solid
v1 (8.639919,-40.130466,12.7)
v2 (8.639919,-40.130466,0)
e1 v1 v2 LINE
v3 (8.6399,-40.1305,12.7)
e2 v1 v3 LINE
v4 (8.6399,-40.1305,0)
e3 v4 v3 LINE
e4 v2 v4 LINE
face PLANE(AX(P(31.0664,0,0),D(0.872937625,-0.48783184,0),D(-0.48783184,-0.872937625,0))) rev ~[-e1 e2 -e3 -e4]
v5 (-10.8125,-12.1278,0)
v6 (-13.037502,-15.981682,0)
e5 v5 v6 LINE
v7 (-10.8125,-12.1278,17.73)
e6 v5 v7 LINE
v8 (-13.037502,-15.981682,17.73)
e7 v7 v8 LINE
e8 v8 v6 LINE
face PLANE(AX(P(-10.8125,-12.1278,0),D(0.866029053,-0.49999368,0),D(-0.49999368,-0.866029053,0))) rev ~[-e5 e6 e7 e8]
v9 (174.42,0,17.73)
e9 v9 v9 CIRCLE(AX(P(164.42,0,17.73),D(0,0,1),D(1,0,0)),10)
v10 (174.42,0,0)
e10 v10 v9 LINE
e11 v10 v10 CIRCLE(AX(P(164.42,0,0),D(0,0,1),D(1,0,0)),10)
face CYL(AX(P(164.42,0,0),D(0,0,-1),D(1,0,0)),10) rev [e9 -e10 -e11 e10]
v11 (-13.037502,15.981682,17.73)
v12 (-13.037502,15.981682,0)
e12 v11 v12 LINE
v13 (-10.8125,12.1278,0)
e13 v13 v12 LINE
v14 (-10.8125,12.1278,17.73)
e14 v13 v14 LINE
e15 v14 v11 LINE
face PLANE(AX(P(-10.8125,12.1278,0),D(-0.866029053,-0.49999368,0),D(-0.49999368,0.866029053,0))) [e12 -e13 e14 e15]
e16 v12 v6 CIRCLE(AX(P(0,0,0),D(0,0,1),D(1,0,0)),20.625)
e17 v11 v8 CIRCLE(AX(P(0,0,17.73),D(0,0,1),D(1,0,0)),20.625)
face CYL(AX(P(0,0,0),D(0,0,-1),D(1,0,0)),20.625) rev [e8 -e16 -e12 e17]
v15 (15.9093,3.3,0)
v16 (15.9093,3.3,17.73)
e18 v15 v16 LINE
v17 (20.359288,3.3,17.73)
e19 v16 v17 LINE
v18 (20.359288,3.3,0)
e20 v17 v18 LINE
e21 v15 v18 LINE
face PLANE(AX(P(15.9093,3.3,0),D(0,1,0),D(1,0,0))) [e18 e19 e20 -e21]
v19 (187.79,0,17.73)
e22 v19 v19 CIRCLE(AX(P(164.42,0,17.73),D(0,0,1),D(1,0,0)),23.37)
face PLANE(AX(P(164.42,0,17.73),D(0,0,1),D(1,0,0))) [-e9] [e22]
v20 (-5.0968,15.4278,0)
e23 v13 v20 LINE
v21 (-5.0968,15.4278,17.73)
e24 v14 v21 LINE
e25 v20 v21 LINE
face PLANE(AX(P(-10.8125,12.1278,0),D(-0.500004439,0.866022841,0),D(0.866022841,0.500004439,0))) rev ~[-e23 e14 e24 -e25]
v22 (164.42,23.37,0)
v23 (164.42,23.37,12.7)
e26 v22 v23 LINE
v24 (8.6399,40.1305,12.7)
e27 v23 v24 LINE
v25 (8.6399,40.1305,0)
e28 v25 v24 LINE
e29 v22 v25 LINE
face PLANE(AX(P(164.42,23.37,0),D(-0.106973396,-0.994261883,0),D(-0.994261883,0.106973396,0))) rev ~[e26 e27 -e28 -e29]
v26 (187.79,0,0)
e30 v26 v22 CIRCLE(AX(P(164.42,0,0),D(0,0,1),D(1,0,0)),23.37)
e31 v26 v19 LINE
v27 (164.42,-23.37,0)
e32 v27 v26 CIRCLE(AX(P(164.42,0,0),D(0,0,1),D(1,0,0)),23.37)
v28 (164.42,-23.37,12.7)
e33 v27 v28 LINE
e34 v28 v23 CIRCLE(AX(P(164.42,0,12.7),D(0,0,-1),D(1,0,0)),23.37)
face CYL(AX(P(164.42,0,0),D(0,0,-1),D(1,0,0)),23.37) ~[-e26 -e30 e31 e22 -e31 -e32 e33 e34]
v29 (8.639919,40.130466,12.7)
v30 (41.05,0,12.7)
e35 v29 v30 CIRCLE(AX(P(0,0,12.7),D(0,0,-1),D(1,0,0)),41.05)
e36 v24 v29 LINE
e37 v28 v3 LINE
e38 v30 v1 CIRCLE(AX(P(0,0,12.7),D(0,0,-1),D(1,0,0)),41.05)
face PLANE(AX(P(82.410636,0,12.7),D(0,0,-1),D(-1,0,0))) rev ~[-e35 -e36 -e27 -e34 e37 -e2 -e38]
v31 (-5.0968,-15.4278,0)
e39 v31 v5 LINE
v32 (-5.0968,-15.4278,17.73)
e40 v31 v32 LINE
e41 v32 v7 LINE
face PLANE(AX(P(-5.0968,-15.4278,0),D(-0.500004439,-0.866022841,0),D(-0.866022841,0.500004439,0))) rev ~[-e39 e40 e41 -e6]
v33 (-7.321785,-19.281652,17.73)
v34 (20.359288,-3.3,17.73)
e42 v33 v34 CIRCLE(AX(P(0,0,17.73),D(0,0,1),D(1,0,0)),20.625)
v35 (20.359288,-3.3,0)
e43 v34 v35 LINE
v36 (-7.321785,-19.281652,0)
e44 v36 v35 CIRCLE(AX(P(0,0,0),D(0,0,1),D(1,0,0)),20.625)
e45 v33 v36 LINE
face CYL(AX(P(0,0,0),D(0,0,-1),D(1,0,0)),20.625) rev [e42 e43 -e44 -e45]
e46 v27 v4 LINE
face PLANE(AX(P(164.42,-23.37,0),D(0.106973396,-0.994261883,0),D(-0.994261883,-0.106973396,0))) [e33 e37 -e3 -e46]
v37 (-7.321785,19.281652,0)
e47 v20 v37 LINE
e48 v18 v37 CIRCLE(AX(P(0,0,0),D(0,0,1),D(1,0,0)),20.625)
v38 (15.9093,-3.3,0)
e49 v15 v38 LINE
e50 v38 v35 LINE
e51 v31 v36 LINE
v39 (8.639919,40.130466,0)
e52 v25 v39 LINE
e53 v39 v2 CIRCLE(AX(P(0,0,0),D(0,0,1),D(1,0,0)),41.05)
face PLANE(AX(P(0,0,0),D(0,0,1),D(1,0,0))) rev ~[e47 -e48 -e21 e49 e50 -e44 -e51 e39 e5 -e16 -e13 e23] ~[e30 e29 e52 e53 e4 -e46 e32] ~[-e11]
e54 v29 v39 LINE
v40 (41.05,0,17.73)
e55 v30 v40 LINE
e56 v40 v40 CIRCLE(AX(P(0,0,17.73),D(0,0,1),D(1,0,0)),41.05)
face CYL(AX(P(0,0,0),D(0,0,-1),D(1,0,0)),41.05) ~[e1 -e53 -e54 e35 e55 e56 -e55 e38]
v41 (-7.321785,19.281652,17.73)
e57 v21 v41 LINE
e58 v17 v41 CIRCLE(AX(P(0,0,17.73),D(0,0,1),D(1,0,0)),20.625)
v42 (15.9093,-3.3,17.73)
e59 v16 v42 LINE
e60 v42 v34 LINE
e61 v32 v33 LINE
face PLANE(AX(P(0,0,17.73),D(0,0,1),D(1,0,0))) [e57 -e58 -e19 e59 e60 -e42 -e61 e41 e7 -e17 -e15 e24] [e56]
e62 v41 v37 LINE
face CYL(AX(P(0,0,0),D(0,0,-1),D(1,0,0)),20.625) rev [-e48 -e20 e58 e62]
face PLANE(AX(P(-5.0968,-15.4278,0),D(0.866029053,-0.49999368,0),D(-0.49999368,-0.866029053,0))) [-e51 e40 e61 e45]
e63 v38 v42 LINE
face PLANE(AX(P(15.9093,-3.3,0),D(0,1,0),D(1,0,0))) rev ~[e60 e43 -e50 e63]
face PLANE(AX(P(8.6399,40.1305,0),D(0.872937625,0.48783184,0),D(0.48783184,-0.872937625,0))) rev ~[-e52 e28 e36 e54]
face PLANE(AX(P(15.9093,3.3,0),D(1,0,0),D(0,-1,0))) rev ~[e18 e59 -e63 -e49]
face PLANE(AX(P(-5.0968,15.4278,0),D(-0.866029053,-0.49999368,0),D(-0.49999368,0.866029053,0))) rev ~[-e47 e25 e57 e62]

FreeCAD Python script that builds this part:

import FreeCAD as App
import Part
import Sketcher
Q = App.Units.Quantity


def add_polygon(sketch, points):
    """Adds a closed chain of lines whose ends are joined by coincident constraints."""
    first, n = sketch.GeometryCount, len(points)
    for a, b in zip(points, points[1:] + points[:1]):
        sketch.addGeometry(Part.LineSegment(App.Vector(*a, 0), App.Vector(*b, 0)), False)
    for i in range(n):
        sketch.addConstraint(Sketcher.Constraint("Coincident", first + i, 2, first + (i + 1) % n, 1))

doc = App.newDocument("Part")
params = doc.addObject("Spreadsheet::Sheet", "Params")
for row, (alias, value) in enumerate([
    ("sketch1_diameter", "20 mm"),
    ("sketch1_diameter2", "82.1 mm"),
    ("sketch1_diameter3", "41.25 mm"),
    ("sketch1_diameter4", "46.74 mm"),
    ("pad1_length", "17.73 mm"),
    ("pad2_length", "12.7 mm"),
    ("sketch3_width", "5 mm"),
    ("sketch3_length", "5 mm"),
    ("sketch3_height", "6.6 mm"),
    ("sketch3_length2", "6.6 mm"),
    ("pad3_length", "17.73 mm"),
], start=1):
    params.set(f"A{row}", alias)
    params.set(f"B{row}", "=" + value)
    params.setAlias(f"B{row}", alias)

body = doc.addObject("PartDesign::Body", "Body")
body.AllowCompound = True

# Sketch on XY plane
sketch1 = body.newObject("Sketcher::SketchObject", "Sketch")
sketch1.AttachmentSupport = (doc.getObject("XY_Plane"), [""])
sketch1.MapMode = "FlatFace"
sketch1.addGeometry(Part.Circle(App.Vector(0, 0, 0), App.Vector(0, 0, 1), 41.05), False)
sketch1.addGeometry(Part.Circle(App.Vector(0, 0, 0), App.Vector(0, 0, 1), 20.625), False)
sketch1.addGeometry(Part.Circle(App.Vector(164.42, 0, 0), App.Vector(0, 0, 1), 23.37), False)
sketch1.addGeometry(Part.Circle(App.Vector(164.42, 0, 0), App.Vector(0, 0, 1), 10), False)
sketch1.addConstraint(Sketcher.Constraint("Coincident", 0, 3, -1, 1))
sketch1.addConstraint(Sketcher.Constraint("Coincident", 1, 3, -1, 1))
sketch1.addConstraint(Sketcher.Constraint("Coincident", 3, 3, 2, 3))
sketch1.addConstraint(Sketcher.Constraint("PointOnObject", 2, 3, -1))
sketch1.addConstraint(Sketcher.Constraint("Diameter", 3, Q("20 mm")))
sketch1.addConstraint(Sketcher.Constraint("Diameter", 0, Q("82.1 mm")))
sketch1.addConstraint(Sketcher.Constraint("Diameter", 1, Q("41.25 mm")))
sketch1.addConstraint(Sketcher.Constraint("Diameter", 2, Q("46.74 mm")))
sketch1.addConstraint(Sketcher.Constraint("DistanceX", -1, 1, 2, 3, Q("164.42 mm")))
sketch1.setExpression("Constraints[4]", "Params.sketch1_diameter")
sketch1.setExpression("Constraints[5]", "Params.sketch1_diameter2")
sketch1.setExpression("Constraints[6]", "Params.sketch1_diameter3")
sketch1.setExpression("Constraints[7]", "Params.sketch1_diameter4")
pad1 = body.newObject("PartDesign::Pad", "Pad")
pad1.Profile = sketch1
pad1.setExpression("Length", "Params.pad1_length")

# Sketch on XY plane
sketch2 = body.newObject("Sketcher::SketchObject", "Sketch001")
sketch2.AttachmentSupport = (doc.getObject("XY_Plane"), [""])
sketch2.MapMode = "FlatFace"
add_polygon(sketch2, [(8.6399, -40.1305), (164.42, -23.37), (143.9301, 0), (164.42, 23.37), (8.6399, 40.1305), (31.0664, 0)])  # lines 0-5
sketch2.addConstraint(Sketcher.Constraint("Symmetric", 0, 2, 2, 2, -1))
sketch2.addConstraint(Sketcher.Constraint("Symmetric", 3, 2, 5, 2, -1))
sketch2.addConstraint(Sketcher.Constraint("PointOnObject", 1, 2, -1))
sketch2.addConstraint(Sketcher.Constraint("PointOnObject", 4, 2, -1))
sketch2.addConstraint(Sketcher.Constraint("Angle", 0, Q("6.1409 deg")))
sketch2.addConstraint(Sketcher.Constraint("DistanceX", -1, 1, 0, 2, Q("164.42 mm")))
sketch2.addConstraint(Sketcher.Constraint("DistanceY", 0, 2, -1, 1, Q("23.37 mm")))
sketch2.addConstraint(Sketcher.Constraint("DistanceX", -1, 1, 1, 2, Q("143.93 mm")))
sketch2.addConstraint(Sketcher.Constraint("DistanceX", -1, 1, 3, 2, Q("8.64 mm")))
sketch2.addConstraint(Sketcher.Constraint("Distance", 4, Q("45.9718 mm")))
pad2 = body.newObject("PartDesign::Pad", "Pad001")
pad2.Profile = sketch2
pad2.setExpression("Length", "Params.pad2_length")

# Sketch on XY plane
sketch3 = body.newObject("Sketcher::SketchObject", "Sketch002")
sketch3.AttachmentSupport = (doc.getObject("XY_Plane"), [""])
sketch3.MapMode = "FlatFace"
add_polygon(sketch3, [(-7.5968, -19.758), (-5.0968, -15.4278), (-10.8125, -12.1278), (-13.3125, -16.458)])  # lines 0-3
add_polygon(sketch3, [(-13.3125, 16.458), (-10.8125, 12.1278), (-5.0968, 15.4278), (-7.5968, 19.758)])  # lines 4-7
add_polygon(sketch3, [(15.9093, 3.3), (15.9093, -3.3), (20.9093, -3.3), (20.9093, 3.3)])  # lines 8-11
sketch3.addConstraint(Sketcher.Constraint("Vertical", 8))
sketch3.addConstraint(Sketcher.Constraint("Horizontal", 9))
sketch3.addConstraint(Sketcher.Constraint("Vertical", 10))
sketch3.addConstraint(Sketcher.Constraint("Horizontal", 11))
sketch3.addConstraint(Sketcher.Constraint("Symmetric", 1, 2, 4, 2, -1))
sketch3.addConstraint(Sketcher.Constraint("Symmetric", 0, 2, 5, 2, -1))
sketch3.addConstraint(Sketcher.Constraint("Symmetric", 3, 2, 6, 2, -1))
sketch3.addConstraint(Sketcher.Constraint("Symmetric", 2, 2, 7, 2, -1))
sketch3.addConstraint(Sketcher.Constraint("Perpendicular", 0, 1))
sketch3.addConstraint(Sketcher.Constraint("Perpendicular", 1, 2))
sketch3.addConstraint(Sketcher.Constraint("Perpendicular", 2, 3))
sketch3.addConstraint(Sketcher.Constraint("DistanceX", 9, 1, 9, 2, Q("5 mm")))
sketch3.addConstraint(Sketcher.Constraint("Angle", 0, Q("60.0004 deg")))
sketch3.addConstraint(Sketcher.Constraint("Distance", 0, Q("5 mm")))
sketch3.addConstraint(Sketcher.Constraint("DistanceY", 8, 2, 8, 1, Q("6.6 mm")))
sketch3.addConstraint(Sketcher.Constraint("Distance", 1, Q("6.6 mm")))
sketch3.addConstraint(Sketcher.Constraint("DistanceY", 8, 2, -1, 1, Q("3.3 mm")))
sketch3.addConstraint(Sketcher.Constraint("DistanceY", 2, 2, -1, 1, Q("16.458 mm")))
sketch3.addConstraint(Sketcher.Constraint("DistanceX", 0, 2, 8, 2, Q("21.006 mm")))
sketch3.addConstraint(Sketcher.Constraint("DistanceX", 0, 2, -1, 1, Q("5.0968 mm")))
sketch3.setExpression("Constraints[23]", "Params.sketch3_width")
sketch3.setExpression("Constraints[25]", "Params.sketch3_length")
sketch3.setExpression("Constraints[26]", "Params.sketch3_height")
sketch3.setExpression("Constraints[27]", "Params.sketch3_length2")
pad3 = body.newObject("PartDesign::Pad", "Pad002")
pad3.Profile = sketch3
pad3.setExpression("Length", "Params.pad3_length")

doc.recompute()
